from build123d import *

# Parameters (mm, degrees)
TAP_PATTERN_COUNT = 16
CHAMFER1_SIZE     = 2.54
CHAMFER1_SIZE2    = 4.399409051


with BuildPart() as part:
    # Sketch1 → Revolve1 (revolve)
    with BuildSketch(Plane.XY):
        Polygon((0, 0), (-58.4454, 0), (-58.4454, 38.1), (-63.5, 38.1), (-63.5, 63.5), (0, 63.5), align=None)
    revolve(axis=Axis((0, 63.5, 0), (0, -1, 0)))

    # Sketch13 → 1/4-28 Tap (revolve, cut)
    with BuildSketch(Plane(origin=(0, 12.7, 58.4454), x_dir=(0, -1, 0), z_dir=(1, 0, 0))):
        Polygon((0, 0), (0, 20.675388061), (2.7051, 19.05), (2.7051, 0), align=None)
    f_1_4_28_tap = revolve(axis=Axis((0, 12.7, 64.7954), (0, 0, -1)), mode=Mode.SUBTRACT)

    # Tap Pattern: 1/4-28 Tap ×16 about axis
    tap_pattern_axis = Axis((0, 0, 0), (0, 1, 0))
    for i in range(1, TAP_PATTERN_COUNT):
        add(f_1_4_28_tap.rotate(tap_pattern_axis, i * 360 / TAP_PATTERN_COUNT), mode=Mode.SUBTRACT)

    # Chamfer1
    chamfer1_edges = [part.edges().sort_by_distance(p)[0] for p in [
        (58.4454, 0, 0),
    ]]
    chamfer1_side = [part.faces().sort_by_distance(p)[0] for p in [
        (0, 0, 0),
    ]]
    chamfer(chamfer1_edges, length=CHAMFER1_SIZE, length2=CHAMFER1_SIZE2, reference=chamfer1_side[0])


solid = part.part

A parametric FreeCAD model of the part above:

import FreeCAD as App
import Part
import Sketcher

V = App.Vector
Q = App.Units.Quantity


def edges_at(feature, points):
    """Names of the edges that pass closest to the given points."""
    edges = feature.Shape.Edges
    near = lambda p: min(range(len(edges)), key=lambda i: edges[i].distToShape(Part.Vertex(*p))[0])
    return sorted({f"Edge{near(p) + 1}" for p in points})


def add_polygon(sketch, points):
    """Adds a closed chain of lines whose ends are joined by coincident constraints."""
    first, n = sketch.GeometryCount, len(points)
    for a, b in zip(points, points[1:] + points[:1]):
        sketch.addGeometry(Part.LineSegment(App.Vector(*a, 0), App.Vector(*b, 0)), False)
    for i in range(n):
        sketch.addConstraint(Sketcher.Constraint("Coincident", first + i, 2, first + (i + 1) % n, 1))

doc = App.newDocument("Part")
body = doc.addObject("PartDesign::Body", "Body")

# Sketch on XY plane
sketch1 = doc.addObject("Sketcher::SketchObject", "Sketch")
body.addObject(sketch1)
sketch1.AttachmentSupport = (doc.XY_Plane, [""])
sketch1.MapMode = "FlatFace"
add_polygon(sketch1, [(-58.4454, 0), (0, 0), (0, 63.5), (-63.5, 63.5), (-63.5, 38.1), (-58.4454, 38.1)])  # lines 0-5
sketch1.addConstraint([
    Sketcher.Constraint("Horizontal", 0),
    Sketcher.Constraint("Vertical", 1),
    Sketcher.Constraint("Horizontal", 2),
    Sketcher.Constraint("Vertical", 3),
    Sketcher.Constraint("Horizontal", 4),
    Sketcher.Constraint("Vertical", 5),
    Sketcher.Constraint("Coincident", 0, 2, -1, 1),
    Sketcher.Constraint("Equal", 2, 1),
    Sketcher.Constraint("DistanceY", 3, 2, 3, 1, Q("1 in")),
    Sketcher.Constraint("DistanceX", 2, 2, 2, 1, Q("2.5 in")),
    Sketcher.Constraint("DistanceX", 0, 1, 0, 2, Q("2.301 in")),
])
revolution = doc.addObject("PartDesign::Revolution", "Revolution")
body.addObject(revolution)
revolution.Profile = sketch1
revolution.ReferenceAxis = (sketch1, ["V_Axis"])
revolution.Angle = 360

# Sketch on YZ plane
sketch2 = doc.addObject("Sketcher::SketchObject", "Sketch001")
body.addObject(sketch2)
sketch2.AttachmentSupport = (doc.YZ_Plane, [""])
sketch2.MapMode = "FlatFace"
add_polygon(sketch2, [(12.7, 37.770012), (12.7, 58.4454), (9.9949, 58.4454), (9.9949, 39.3954)])  # lines 0-3
sketch2.addGeometry(Part.LineSegment(V(12.7, 58.4454, 0), V(12.7, 37.770012, 0)), True)  # axis
sketch2.addConstraint([
    Sketcher.Constraint("Vertical", 0),
    Sketcher.Constraint("Horizontal", 1),
    Sketcher.Constraint("Vertical", 2),
    Sketcher.Constraint("Vertical", 4),
    Sketcher.Constraint("Coincident", 4, 1, 0, 2),
    Sketcher.Constraint("Equal", 0, 4),
    Sketcher.Constraint("Angle", 3, Q("-31 deg")),
    Sketcher.Constraint("DistanceY", 2, 2, 2, 1, Q("0.75 in")),
    Sketcher.Constraint("DistanceX", -1, 1, 0, 2, Q("0.5 in")),
    Sketcher.Constraint("DistanceX", 1, 2, 1, 1, Q("0.1065 in")),
    Sketcher.Constraint("DistanceY", -1, 1, 0, 2, Q("2.301 in")),
])
groove = doc.addObject("PartDesign::Groove", "Groove")
body.addObject(groove)
groove.Profile = sketch2
groove.ReferenceAxis = (sketch2, ["Axis0"])
groove.Angle = 360
doc.recompute()

polarpattern = doc.addObject("PartDesign::PolarPattern", "PolarPattern")
body.addObject(polarpattern)
polarpattern.Originals = [groove]
polarpattern.Axis = (doc.Y_Axis, [""])
polarpattern.Angle = 360
polarpattern.Occurrences = 16
body.Tip = polarpattern
doc.recompute()

chamfer = doc.addObject("PartDesign::Chamfer", "Chamfer")
body.addObject(chamfer)
chamfer.Base = (polarpattern, edges_at(polarpattern, [(58.445, 0, 0)]))
chamfer.ChamferType = "Two distances"
chamfer.Size = Q("0.1 in")
chamfer.Size2 = 4.399409

doc.recompute()
